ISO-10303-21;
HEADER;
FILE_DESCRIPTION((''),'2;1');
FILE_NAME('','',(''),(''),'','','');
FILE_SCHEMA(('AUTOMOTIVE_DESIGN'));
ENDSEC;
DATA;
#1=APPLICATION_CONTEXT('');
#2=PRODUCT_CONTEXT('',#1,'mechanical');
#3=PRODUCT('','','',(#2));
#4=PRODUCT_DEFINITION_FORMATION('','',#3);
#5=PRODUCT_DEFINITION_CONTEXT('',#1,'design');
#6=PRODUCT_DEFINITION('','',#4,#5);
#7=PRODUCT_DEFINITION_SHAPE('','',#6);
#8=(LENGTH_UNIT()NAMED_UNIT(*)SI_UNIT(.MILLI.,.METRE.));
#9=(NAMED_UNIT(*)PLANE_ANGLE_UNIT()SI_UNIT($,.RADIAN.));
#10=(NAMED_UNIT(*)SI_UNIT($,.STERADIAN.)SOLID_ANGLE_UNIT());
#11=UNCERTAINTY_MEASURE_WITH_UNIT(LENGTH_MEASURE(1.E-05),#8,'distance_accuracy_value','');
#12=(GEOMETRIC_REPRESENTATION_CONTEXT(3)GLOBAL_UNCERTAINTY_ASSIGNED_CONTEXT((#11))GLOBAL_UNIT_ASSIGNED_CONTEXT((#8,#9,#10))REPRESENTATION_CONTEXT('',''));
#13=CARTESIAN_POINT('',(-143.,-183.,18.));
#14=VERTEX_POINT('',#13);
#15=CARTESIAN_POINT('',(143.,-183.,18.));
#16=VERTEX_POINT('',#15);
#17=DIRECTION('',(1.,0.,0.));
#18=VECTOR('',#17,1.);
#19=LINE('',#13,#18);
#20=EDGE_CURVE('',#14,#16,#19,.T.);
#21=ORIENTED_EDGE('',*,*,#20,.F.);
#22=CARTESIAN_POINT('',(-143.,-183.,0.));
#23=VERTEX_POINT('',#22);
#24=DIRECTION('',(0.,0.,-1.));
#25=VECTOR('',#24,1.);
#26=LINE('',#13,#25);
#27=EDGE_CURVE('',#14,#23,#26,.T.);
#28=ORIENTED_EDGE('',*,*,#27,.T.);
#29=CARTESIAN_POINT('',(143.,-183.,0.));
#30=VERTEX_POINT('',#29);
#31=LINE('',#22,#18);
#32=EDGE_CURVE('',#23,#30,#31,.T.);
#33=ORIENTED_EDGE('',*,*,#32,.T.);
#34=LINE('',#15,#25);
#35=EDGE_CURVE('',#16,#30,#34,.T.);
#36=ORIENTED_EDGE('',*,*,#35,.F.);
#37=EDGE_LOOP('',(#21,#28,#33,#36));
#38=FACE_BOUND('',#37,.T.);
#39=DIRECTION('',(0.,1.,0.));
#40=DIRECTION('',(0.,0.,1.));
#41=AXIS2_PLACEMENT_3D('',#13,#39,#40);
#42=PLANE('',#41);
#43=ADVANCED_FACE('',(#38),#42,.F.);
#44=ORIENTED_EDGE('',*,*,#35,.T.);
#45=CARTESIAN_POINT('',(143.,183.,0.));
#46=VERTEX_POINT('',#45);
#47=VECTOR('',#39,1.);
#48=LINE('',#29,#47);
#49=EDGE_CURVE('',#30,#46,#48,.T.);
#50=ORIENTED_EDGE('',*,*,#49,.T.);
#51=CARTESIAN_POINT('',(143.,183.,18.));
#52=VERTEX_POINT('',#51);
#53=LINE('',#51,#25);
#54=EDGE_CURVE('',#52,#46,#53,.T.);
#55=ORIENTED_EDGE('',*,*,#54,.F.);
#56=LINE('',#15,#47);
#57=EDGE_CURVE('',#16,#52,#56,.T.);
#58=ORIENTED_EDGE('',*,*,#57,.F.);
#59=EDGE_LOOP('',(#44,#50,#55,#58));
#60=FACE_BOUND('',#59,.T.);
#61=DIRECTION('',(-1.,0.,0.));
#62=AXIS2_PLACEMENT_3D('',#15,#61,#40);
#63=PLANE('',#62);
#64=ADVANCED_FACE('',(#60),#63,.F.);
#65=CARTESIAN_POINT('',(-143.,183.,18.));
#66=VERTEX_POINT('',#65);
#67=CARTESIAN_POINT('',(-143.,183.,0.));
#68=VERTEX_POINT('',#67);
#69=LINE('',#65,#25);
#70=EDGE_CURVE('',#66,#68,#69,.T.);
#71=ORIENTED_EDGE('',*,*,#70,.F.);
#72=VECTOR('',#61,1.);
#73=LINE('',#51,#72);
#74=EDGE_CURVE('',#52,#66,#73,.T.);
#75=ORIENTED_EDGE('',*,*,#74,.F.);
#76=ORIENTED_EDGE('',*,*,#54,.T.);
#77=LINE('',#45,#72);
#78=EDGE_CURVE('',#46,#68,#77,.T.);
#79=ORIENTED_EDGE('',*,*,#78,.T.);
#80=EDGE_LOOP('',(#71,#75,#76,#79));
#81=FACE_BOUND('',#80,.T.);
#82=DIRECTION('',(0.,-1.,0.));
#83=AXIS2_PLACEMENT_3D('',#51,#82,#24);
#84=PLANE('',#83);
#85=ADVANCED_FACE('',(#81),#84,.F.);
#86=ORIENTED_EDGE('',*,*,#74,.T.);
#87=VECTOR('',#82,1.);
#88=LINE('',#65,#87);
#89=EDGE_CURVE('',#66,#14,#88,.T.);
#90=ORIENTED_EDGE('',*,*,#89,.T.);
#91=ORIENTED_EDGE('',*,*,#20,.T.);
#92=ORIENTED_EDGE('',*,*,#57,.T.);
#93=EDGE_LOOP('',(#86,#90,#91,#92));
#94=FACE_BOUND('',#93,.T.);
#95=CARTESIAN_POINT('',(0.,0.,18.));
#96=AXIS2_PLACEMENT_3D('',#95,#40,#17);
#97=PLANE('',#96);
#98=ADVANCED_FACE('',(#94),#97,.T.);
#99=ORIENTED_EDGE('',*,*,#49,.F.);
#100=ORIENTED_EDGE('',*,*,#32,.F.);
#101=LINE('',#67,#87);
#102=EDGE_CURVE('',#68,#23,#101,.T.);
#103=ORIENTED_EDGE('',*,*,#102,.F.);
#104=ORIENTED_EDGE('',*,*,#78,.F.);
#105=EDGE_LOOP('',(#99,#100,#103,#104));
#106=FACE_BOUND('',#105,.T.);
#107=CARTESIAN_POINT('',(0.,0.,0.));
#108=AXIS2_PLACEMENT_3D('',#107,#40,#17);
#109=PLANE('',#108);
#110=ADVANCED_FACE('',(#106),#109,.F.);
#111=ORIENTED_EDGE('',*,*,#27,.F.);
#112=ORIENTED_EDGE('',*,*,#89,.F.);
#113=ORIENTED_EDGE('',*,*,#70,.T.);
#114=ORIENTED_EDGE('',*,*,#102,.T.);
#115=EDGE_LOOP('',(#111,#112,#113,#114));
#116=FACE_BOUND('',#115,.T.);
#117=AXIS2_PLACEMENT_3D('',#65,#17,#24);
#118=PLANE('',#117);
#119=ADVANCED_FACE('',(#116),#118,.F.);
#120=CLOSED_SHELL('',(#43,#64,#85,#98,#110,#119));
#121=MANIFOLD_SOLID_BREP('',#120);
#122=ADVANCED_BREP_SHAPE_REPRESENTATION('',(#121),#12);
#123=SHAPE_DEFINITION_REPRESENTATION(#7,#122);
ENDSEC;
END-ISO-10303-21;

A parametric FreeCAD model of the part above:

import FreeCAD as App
import Part
import Sketcher


def add_polygon(sketch, points):
    """Adds a closed chain of lines whose ends are joined by coincident constraints."""
    first, n = sketch.GeometryCount, len(points)
    for a, b in zip(points, points[1:] + points[:1]):
        sketch.addGeometry(Part.LineSegment(App.Vector(*a, 0), App.Vector(*b, 0)), False)
    for i in range(n):
        sketch.addConstraint(Sketcher.Constraint("Coincident", first + i, 2, first + (i + 1) % n, 1))

doc = App.newDocument("Part")
params = doc.addObject("Spreadsheet::Sheet", "Params")
for row, (alias, value) in enumerate([
    ("sketch1_width", "286 mm"),
    ("sketch1_height", "366 mm"),
    ("pad1_length", "18 mm"),
], start=1):
    params.set(f"A{row}", alias)
    params.set(f"B{row}", "=" + value)
    params.setAlias(f"B{row}", alias)

body = doc.addObject("PartDesign::Body", "Body")

sketch1 = body.newObject("Sketcher::SketchObject", "Sketch")
sketch1.AttachmentSupport = (doc.getObject("XY_Plane"), [""])
sketch1.MapMode = "FlatFace"
add_polygon(sketch1, [(-143, 183), (-143, -183), (143, -183), (143, 183)])
sketch1.addConstraint([
    Sketcher.Constraint("Vertical", 0),
    Sketcher.Constraint("Horizontal", 1),
    Sketcher.Constraint("Vertical", 2),
    Sketcher.Constraint("Horizontal", 3),
    Sketcher.Constraint("Symmetric", 0, 2, 2, 2, -1, 1),
    Sketcher.Constraint("DistanceX", 1, 1, 1, 2, 286.0),
    Sketcher.Constraint("DistanceY", 0, 2, 0, 1, 366.0),
])
sketch1.setExpression("Constraints[9]", "Params.sketch1_width")
sketch1.setExpression("Constraints[10]", "Params.sketch1_height")
pad1 = body.newObject("PartDesign::Pad", "Pad")
pad1.Profile = sketch1
pad1.setExpression("Length", "Params.pad1_length")

doc.recompute()
